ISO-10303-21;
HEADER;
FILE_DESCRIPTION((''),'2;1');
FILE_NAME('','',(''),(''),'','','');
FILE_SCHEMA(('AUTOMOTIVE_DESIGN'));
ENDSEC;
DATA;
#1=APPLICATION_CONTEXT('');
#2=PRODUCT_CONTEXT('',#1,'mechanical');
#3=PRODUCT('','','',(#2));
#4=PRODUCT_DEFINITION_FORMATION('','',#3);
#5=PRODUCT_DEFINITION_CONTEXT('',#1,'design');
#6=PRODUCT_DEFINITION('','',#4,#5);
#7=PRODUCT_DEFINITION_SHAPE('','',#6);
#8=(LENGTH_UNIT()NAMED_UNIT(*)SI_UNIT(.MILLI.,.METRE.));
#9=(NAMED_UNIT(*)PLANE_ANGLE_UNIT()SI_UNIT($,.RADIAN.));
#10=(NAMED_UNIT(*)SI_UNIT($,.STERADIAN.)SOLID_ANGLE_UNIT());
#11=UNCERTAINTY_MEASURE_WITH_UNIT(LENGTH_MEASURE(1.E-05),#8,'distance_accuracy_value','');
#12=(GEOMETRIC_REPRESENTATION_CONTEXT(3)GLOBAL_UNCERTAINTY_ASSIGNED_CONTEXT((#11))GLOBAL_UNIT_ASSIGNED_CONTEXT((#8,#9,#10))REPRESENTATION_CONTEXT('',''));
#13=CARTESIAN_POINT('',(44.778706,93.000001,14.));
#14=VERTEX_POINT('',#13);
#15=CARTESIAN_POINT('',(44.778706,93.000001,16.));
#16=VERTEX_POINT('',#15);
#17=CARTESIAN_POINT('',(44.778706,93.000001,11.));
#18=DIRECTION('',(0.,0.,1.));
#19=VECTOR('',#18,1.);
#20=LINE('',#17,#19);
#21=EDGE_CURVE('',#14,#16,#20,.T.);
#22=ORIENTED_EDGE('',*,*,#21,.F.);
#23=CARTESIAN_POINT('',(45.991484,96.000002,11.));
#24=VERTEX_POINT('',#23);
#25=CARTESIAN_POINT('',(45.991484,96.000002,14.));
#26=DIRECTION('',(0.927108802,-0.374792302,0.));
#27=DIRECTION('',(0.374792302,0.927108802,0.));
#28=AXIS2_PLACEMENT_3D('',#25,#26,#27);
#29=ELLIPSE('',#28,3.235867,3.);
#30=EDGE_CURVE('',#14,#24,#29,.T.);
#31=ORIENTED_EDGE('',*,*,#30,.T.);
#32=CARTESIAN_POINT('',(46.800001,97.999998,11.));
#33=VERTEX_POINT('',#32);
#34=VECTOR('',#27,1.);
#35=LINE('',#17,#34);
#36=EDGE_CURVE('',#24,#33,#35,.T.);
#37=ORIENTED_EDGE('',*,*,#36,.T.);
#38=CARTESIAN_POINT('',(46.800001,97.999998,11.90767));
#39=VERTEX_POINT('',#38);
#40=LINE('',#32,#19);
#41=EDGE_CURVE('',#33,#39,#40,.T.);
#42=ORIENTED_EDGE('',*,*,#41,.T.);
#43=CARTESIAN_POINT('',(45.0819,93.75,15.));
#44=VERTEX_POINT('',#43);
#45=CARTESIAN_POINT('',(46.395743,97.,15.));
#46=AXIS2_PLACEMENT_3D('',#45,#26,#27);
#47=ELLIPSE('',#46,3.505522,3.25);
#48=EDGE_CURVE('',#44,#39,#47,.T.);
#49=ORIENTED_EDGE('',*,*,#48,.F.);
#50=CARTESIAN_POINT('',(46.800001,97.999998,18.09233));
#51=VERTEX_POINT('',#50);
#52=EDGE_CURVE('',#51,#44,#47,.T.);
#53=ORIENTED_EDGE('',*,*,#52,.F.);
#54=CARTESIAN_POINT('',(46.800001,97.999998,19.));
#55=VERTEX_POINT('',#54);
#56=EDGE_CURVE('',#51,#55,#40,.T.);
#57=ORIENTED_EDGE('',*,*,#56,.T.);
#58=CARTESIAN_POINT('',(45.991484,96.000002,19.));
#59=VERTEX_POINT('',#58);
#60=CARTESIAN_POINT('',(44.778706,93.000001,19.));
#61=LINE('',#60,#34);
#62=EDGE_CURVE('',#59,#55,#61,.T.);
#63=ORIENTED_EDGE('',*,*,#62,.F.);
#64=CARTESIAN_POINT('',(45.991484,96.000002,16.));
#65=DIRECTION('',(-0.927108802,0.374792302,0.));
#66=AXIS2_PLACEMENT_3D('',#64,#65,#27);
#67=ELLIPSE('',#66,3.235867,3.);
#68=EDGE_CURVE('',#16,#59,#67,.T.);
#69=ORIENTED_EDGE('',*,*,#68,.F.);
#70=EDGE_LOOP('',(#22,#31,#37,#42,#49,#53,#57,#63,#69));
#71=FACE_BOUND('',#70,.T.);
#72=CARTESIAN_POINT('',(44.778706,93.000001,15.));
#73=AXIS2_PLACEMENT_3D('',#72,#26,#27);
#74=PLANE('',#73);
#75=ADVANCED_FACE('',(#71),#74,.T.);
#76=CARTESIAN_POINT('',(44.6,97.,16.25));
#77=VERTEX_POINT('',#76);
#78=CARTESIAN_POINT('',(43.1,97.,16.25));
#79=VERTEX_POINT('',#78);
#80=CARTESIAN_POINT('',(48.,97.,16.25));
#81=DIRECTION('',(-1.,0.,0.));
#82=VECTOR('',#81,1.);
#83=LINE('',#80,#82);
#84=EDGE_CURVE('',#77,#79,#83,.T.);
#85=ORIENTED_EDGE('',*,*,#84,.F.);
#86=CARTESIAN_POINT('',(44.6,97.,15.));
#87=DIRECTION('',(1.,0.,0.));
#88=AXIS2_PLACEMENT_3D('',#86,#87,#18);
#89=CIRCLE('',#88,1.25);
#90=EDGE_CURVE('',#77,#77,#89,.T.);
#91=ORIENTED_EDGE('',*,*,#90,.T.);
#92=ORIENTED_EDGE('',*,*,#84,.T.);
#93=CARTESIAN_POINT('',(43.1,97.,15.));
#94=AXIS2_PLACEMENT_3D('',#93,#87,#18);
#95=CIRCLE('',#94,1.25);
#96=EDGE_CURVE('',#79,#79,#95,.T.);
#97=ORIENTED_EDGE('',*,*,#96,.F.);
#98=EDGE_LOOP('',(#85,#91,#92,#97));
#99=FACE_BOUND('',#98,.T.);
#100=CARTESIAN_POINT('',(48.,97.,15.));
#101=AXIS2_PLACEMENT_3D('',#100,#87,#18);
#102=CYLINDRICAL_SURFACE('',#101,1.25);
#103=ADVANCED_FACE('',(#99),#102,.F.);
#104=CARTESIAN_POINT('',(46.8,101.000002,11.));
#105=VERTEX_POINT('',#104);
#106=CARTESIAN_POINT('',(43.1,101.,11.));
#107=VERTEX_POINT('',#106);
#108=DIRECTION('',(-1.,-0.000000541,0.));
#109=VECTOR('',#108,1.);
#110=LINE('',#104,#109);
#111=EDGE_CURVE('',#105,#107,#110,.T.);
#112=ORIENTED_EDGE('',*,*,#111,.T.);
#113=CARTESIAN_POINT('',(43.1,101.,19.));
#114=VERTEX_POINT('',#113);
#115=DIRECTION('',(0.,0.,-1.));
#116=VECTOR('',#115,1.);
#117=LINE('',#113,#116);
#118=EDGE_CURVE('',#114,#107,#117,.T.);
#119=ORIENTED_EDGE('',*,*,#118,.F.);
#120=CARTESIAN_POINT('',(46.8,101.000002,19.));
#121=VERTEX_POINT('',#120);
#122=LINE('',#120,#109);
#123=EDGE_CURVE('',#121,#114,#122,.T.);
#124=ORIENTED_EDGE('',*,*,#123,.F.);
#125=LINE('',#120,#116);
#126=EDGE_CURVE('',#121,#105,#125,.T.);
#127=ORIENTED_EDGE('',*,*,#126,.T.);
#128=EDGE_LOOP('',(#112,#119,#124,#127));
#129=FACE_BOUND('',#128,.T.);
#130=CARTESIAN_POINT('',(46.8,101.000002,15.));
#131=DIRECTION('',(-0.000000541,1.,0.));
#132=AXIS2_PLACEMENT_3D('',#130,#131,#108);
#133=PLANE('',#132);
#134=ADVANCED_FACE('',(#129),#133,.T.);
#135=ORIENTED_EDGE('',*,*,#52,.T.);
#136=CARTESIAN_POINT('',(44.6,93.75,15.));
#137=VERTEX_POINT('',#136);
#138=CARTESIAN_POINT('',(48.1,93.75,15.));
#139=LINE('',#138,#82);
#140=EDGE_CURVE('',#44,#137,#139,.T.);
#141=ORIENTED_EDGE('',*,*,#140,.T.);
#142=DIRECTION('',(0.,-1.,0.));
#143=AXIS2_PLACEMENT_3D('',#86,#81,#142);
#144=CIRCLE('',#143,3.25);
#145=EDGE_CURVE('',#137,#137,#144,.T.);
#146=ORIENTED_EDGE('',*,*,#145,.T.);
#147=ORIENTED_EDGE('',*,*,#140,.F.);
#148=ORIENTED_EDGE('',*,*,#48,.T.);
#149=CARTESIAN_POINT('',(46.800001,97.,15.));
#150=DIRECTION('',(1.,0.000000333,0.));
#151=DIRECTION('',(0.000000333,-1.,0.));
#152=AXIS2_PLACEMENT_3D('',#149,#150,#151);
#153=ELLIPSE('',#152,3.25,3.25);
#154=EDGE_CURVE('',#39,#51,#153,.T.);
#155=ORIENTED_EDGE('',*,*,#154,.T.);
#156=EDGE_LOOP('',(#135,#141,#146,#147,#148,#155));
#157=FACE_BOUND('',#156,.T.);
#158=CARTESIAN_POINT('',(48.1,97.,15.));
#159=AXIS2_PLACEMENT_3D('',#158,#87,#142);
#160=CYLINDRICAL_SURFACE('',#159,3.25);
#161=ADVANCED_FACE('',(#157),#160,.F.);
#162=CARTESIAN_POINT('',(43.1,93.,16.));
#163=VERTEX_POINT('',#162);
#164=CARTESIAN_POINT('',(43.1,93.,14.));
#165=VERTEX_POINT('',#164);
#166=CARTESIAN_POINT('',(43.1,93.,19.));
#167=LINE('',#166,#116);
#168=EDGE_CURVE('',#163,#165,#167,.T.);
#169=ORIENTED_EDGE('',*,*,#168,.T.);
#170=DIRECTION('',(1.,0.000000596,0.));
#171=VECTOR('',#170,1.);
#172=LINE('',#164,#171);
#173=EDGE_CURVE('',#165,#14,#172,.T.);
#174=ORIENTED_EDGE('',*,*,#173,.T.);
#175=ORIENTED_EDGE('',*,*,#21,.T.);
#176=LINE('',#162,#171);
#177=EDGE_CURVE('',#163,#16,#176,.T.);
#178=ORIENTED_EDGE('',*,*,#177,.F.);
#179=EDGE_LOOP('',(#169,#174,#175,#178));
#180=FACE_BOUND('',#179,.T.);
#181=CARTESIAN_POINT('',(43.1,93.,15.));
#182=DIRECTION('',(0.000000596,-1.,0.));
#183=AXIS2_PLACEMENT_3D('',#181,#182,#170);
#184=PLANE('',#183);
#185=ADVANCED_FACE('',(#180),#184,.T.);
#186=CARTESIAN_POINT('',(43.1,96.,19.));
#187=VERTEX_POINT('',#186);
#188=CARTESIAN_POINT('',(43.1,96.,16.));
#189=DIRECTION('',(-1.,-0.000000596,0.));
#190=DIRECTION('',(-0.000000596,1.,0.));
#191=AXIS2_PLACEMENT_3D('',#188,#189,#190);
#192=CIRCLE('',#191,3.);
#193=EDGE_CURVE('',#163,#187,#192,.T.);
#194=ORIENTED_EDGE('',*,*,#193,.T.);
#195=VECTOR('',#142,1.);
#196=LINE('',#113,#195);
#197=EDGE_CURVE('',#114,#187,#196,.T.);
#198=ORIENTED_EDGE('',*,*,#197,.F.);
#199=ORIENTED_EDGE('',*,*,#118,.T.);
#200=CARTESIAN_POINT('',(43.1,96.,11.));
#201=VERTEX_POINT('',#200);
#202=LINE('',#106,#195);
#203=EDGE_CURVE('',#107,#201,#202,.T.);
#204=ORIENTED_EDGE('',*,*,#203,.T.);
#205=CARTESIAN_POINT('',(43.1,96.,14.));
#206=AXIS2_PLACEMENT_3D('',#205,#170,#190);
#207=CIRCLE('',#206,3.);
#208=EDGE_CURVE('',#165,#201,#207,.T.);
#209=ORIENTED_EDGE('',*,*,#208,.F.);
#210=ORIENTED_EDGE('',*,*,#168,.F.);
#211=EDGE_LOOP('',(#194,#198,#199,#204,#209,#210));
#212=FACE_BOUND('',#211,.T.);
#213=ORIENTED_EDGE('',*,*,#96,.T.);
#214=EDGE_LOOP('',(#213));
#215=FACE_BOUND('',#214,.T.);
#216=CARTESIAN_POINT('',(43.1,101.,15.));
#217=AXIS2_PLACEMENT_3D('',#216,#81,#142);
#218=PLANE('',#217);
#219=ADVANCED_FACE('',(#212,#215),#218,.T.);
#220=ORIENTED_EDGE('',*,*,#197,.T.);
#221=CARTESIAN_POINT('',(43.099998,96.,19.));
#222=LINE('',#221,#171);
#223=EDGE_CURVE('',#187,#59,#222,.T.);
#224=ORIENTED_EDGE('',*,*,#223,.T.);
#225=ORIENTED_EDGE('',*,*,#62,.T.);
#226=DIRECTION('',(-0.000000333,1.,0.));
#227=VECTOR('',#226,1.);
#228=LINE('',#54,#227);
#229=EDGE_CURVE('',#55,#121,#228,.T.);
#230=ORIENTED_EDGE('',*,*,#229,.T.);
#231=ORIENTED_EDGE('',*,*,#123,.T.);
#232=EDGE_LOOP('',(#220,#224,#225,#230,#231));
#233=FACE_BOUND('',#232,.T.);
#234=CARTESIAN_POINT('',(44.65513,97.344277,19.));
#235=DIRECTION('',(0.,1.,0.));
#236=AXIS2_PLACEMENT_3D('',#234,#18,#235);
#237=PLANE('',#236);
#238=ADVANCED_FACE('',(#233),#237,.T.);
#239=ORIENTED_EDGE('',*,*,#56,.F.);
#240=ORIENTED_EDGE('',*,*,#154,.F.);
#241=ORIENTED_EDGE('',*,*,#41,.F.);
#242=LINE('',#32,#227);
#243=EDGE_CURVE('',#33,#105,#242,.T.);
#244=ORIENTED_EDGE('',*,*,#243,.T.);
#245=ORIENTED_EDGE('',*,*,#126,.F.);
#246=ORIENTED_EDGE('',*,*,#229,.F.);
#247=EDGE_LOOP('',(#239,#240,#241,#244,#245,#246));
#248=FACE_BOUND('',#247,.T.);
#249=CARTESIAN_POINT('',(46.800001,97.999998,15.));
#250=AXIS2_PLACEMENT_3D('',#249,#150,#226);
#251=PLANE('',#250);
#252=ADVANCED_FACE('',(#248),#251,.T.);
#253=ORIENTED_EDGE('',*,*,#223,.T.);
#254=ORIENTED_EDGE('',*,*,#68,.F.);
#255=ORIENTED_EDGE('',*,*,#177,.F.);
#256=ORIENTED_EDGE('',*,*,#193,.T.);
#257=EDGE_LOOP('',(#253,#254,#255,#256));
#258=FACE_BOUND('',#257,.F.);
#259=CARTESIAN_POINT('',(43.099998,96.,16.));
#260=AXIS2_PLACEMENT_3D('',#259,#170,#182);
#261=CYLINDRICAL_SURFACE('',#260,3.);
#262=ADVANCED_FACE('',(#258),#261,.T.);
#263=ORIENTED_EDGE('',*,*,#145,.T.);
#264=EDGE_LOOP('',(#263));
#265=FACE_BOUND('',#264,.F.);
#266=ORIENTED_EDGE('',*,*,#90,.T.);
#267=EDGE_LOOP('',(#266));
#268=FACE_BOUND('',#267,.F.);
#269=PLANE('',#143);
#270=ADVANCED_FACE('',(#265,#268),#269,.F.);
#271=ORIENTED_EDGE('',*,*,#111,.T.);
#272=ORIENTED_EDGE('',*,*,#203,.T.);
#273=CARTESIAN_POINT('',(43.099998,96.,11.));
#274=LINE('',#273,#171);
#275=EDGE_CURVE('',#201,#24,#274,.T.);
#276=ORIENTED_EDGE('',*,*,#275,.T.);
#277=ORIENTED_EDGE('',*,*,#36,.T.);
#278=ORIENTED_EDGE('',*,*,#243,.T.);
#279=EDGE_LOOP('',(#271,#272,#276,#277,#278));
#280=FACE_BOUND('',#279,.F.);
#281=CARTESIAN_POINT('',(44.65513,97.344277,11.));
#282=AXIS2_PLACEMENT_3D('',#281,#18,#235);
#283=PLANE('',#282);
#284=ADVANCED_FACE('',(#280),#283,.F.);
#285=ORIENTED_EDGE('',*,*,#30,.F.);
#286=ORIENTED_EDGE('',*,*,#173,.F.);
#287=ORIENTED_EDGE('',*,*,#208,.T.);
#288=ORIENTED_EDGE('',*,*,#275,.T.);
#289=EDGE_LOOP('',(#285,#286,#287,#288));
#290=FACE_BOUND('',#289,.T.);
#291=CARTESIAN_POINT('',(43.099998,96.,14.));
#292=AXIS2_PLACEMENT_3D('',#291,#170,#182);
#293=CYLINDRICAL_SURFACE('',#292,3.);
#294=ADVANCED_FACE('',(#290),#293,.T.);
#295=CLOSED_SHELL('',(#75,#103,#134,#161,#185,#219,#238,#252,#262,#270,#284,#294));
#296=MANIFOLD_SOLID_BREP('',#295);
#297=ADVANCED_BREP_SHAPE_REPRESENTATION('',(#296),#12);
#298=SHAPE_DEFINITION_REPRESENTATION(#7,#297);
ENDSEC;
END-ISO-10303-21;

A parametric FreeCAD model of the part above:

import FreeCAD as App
import Part
import Sketcher

V = App.Vector
Q = App.Units.Quantity


def edges_at(feature, points):
    """Names of the edges that pass closest to the given points."""
    edges = feature.Shape.Edges
    near = lambda p: min(range(len(edges)), key=lambda i: edges[i].distToShape(Part.Vertex(*p))[0])
    return sorted({f"Edge{near(p) + 1}" for p in points})

doc = App.newDocument("Part")
body = doc.addObject("PartDesign::Body", "Body")

# Sketch on YZ plane
sketch1 = body.newObject("Sketcher::SketchObject", "Sketch")
sketch1.AttachmentSupport = (doc.getObject("YZ_Plane"), [""])
sketch1.MapMode = "FlatFace"
sketch1.AttachmentOffset = App.Placement(V(0, 0, -96), App.Rotation())
sketch1.addGeometry(Part.LineSegment(V(93, 26.9, 0), V(93, 25.2, 0)), False)
sketch1.addGeometry(Part.LineSegment(V(93, 25.2, 0), V(98, 23.2, 0)), False)
sketch1.addGeometry(Part.LineSegment(V(98, 23.2, 0), V(101, 23.2, 0)), False)
sketch1.addGeometry(Part.LineSegment(V(101, 23.2, 0), V(101, 26.9, 0)), False)
sketch1.addGeometry(Part.LineSegment(V(101, 26.9, 0), V(93, 26.9, 0)), False)
sketch1.addConstraint(Sketcher.Constraint("Coincident", 0, 2, 1, 1))
sketch1.addConstraint(Sketcher.Constraint("Coincident", 1, 2, 2, 1))
sketch1.addConstraint(Sketcher.Constraint("Coincident", 2, 2, 3, 1))
sketch1.addConstraint(Sketcher.Constraint("Coincident", 3, 2, 4, 1))
sketch1.addConstraint(Sketcher.Constraint("Coincident", 4, 2, 0, 1))
sketch1.addConstraint(Sketcher.Constraint("Vertical", 0))
sketch1.addConstraint(Sketcher.Constraint("Horizontal", 2))
sketch1.addConstraint(Sketcher.Constraint("Vertical", 3))
sketch1.addConstraint(Sketcher.Constraint("Horizontal", 4))
sketch1.addConstraint(Sketcher.Constraint("DistanceX", 4, 2, 4, 1, Q("8 mm")))
sketch1.addConstraint(Sketcher.Constraint("DistanceY", 3, 1, 3, 2, Q("3.7 mm")))
sketch1.addConstraint(Sketcher.Constraint("DistanceX", -1, 1, 0, 2, Q("93.000001 mm")))
sketch1.addConstraint(Sketcher.Constraint("DistanceX", -1, 1, 1, 2, Q("97.999998 mm")))
sketch1.addConstraint(Sketcher.Constraint("DistanceY", -1, 1, 1, 2, Q("23.199999 mm")))
sketch1.addConstraint(Sketcher.Constraint("DistanceY", 0, 2, 0, 1, Q("1.678706 mm")))
pad1 = body.newObject("PartDesign::Pad", "Pad")
pad1.Profile = sketch1
pad1.Length = 8
pad1.Midplane = True

# Sketch on XY plane
sketch2 = body.newObject("Sketcher::SketchObject", "Sketch001")
sketch2.AttachmentSupport = (doc.getObject("XY_Plane"), [""])
sketch2.MapMode = "FlatFace"
sketch2.AttachmentOffset = App.Placement(V(0, 0, 21.9), App.Rotation())
sketch2.addGeometry(Part.Circle(V(-96, 97, 0), V(0, 0, 1), 3.2), False)
sketch2.addConstraint(Sketcher.Constraint("Diameter", 0, Q("6.5 mm")))
sketch2.addConstraint(Sketcher.Constraint("DistanceX", 0, 3, -1, 1, Q("96 mm")))
sketch2.addConstraint(Sketcher.Constraint("DistanceY", -1, 1, 0, 3, Q("97 mm")))
pocket1 = body.newObject("PartDesign::Pocket", "Pocket")
pocket1.Profile = sketch2
pocket1.Length = 3.5
pocket1.Reversed = True

# Sketch on XY plane
sketch3 = body.newObject("Sketcher::SketchObject", "Sketch002")
sketch3.AttachmentSupport = (doc.getObject("XY_Plane"), [""])
sketch3.MapMode = "FlatFace"
sketch3.AttachmentOffset = App.Placement(V(0, 0, 22), App.Rotation())
sketch3.addGeometry(Part.Circle(V(-96, 97, 0), V(0, 0, 1), 1.2), False)
sketch3.addConstraint(Sketcher.Constraint("Diameter", 0, Q("2.5 mm")))
sketch3.addConstraint(Sketcher.Constraint("DistanceX", 0, 3, -1, 1, Q("96 mm")))
sketch3.addConstraint(Sketcher.Constraint("DistanceY", -1, 1, 0, 3, Q("97 mm")))
pocket2 = body.newObject("PartDesign::Pocket", "Pocket001")
pocket2.Profile = sketch3
pocket2.Length = 5
pocket2.Reversed = True
doc.recompute()

fillet = body.newObject("PartDesign::Fillet", "Fillet")
fillet.Base = (pocket2, edges_at(pocket2, [(-92, 93, 26.061), (-100, 93, 26.061)]))
fillet.Radius = 3
body2 = doc.addObject("PartDesign::Body", "Body001")
doc.recompute()

body.Placement = App.Placement(V(-122, 0, 111), App.Rotation(V(0, -1, 0), 90))
boolean = body2.newObject("PartDesign::Boolean", "Boolean")
boolean.Type = "Fuse"
boolean.addObjects([body])
body3 = doc.addObject("PartDesign::Body", "Body002")
doc.recompute()

body2.Placement = App.Placement(V(192, 0, 0), App.Rotation(V(0, 0, 1), 0))
boolean2 = body3.newObject("PartDesign::Boolean", "Boolean001")
boolean2.Type = "Fuse"
boolean2.addObjects([body2])

doc.recompute()
